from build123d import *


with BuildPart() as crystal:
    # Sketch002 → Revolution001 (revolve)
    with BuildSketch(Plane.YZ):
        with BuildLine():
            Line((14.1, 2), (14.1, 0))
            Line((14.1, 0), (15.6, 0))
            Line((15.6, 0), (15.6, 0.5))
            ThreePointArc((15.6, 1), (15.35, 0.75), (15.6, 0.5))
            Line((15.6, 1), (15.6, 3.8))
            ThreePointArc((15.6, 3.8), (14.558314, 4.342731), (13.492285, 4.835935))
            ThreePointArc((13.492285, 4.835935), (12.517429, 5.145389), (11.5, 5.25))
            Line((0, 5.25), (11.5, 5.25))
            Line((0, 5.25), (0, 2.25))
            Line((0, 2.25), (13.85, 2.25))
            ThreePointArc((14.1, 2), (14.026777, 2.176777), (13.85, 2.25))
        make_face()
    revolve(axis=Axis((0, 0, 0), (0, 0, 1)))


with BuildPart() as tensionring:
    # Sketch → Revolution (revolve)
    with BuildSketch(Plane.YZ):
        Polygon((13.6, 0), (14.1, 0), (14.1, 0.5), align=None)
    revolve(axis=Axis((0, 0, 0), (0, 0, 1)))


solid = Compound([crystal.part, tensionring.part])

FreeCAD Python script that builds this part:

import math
import FreeCAD as App
import Part
import Sketcher

V = App.Vector


def add_polygon(sketch, points):
    """Adds a closed chain of lines whose ends are joined by coincident constraints."""
    first, n = sketch.GeometryCount, len(points)
    for a, b in zip(points, points[1:] + points[:1]):
        sketch.addGeometry(Part.LineSegment(App.Vector(*a, 0), App.Vector(*b, 0)), False)
    for i in range(n):
        sketch.addConstraint(Sketcher.Constraint("Coincident", first + i, 2, first + (i + 1) % n, 1))

doc = App.newDocument("Part")
body = doc.addObject("PartDesign::Body", "Body")

# Sketch on YZ plane
sketch1 = body.newObject("Sketcher::SketchObject", "Sketch")
sketch1.AttachmentSupport = (doc.getObject("YZ_Plane"), [""])
sketch1.MapMode = "FlatFace"
sketch1.addGeometry(Part.LineSegment(V(14.1, 2, 0), V(14.1, 0, 0)), False)
sketch1.addGeometry(Part.LineSegment(V(14.1, 0, 0), V(15.6, 0, 0)), False)
sketch1.addGeometry(Part.LineSegment(V(15.6, 0, 0), V(15.6, 0.5, 0)), False)
sketch1.addGeometry(Part.ArcOfCircle(Part.Circle(V(15.6, 0.75, 0), V(0, 0, 1), 0.25), math.radians(90), math.radians(270)), False)
sketch1.addGeometry(Part.LineSegment(V(15.6, 1, 0), V(15.6, 3.8, 0)), False)
sketch1.addGeometry(Part.ArcOfCircle(Part.Circle(V(3.530742, -18.093983, 0), V(0, 0, 1), 25.00027), math.radians(61.133849), math.radians(66.518221)), False)
sketch1.addGeometry(Part.ArcOfCircle(Part.Circle(V(11.499996, 0.249979, 0), V(0, 0, 1), 5.000021), math.radians(66.518294), math.radians(89.999949)), False)
sketch1.addGeometry(Part.LineSegment(V(11.5, 5.25, 0), V(0, 5.25, 0)), False)
sketch1.addGeometry(Part.LineSegment(V(0, 5.25, 0), V(0, 2.25, 0)), False)
sketch1.addGeometry(Part.LineSegment(V(0, 2.25, 0), V(13.85, 2.25, 0)), False)
sketch1.addGeometry(Part.ArcOfCircle(Part.Circle(V(13.850001, 2.000001, 0), V(0, 0, 1), 0.249999), math.radians(-0.000238), math.radians(90.000238)), False)
sketch1.addConstraint(Sketcher.Constraint("Coincident", 0, 2, 1, 1))
sketch1.addConstraint(Sketcher.Constraint("Coincident", 1, 2, 2, 1))
sketch1.addConstraint(Sketcher.Constraint("Coincident", 2, 2, 3, 2))
sketch1.addConstraint(Sketcher.Constraint("Coincident", 3, 1, 4, 1))
sketch1.addConstraint(Sketcher.Constraint("Coincident", 4, 2, 5, 1))
sketch1.addConstraint(Sketcher.Constraint("Coincident", 5, 2, 6, 1))
sketch1.addConstraint(Sketcher.Constraint("Coincident", 6, 2, 7, 1))
sketch1.addConstraint(Sketcher.Constraint("Coincident", 7, 2, 8, 1))
sketch1.addConstraint(Sketcher.Constraint("Coincident", 8, 2, 9, 1))
sketch1.addConstraint(Sketcher.Constraint("Coincident", 9, 2, 10, 2))
sketch1.addConstraint(Sketcher.Constraint("Coincident", 10, 1, 0, 1))
sketch1.addConstraint(Sketcher.Constraint("Vertical", 0))
sketch1.addConstraint(Sketcher.Constraint("Horizontal", 1))
sketch1.addConstraint(Sketcher.Constraint("Vertical", 2))
sketch1.addConstraint(Sketcher.Constraint("Vertical", 4))
sketch1.addConstraint(Sketcher.Constraint("Horizontal", 7))
sketch1.addConstraint(Sketcher.Constraint("Vertical", 8))
sketch1.addConstraint(Sketcher.Constraint("Horizontal", 9))
sketch1.addConstraint(Sketcher.Constraint("PointOnObject", 0, 2, -1))
sketch1.addConstraint(Sketcher.Constraint("PointOnObject", 7, 2, -2))
sketch1.addConstraint(Sketcher.Constraint("DistanceY", 0, 2, 0, 1, 2.0))
sketch1.addConstraint(Sketcher.Constraint("DistanceY", 8, 2, 8, 1, 3.0))
sketch1.addConstraint(Sketcher.Constraint("Radius", 3, 0.25))
sketch1.addConstraint(Sketcher.Constraint("Radius", 10, 0.249999))
sketch1.addConstraint(Sketcher.Constraint("DistanceX", 1, 1, 1, 2, 1.5))
sketch1.addConstraint(Sketcher.Constraint("DistanceX", 7, 2, 7, 1, 11.5))
sketch1.addConstraint(Sketcher.Constraint("DistanceY", 2, 1, 2, 2, 0.5))
sketch1.addConstraint(Sketcher.Constraint("DistanceY", 4, 1, 4, 2, 2.8))
sketch1.addConstraint(Sketcher.Constraint("DistanceY", -1, 1, 10, 3, 2.000001))
sketch1.addConstraint(Sketcher.Constraint("DistanceX", 9, 1, 9, 2, 13.85))
sketch1.addConstraint(Sketcher.Constraint("DistanceX", -1, 1, 3, 3, 15.6))
sketch1.addConstraint(Sketcher.Constraint("DistanceX", -1, 1, 0, 2, 14.1))
sketch1.addConstraint(Sketcher.Constraint("DistanceX", -1, 1, 3, 1, 15.6))
sketch1.addConstraint(Sketcher.Constraint("Radius", 5, 25.00027))
sketch1.addConstraint(Sketcher.Constraint("Radius", 6, 5.000021))
sketch1.addConstraint(Sketcher.Constraint("DistanceX", 5, 3, 10, 3, 10.319259))
sketch1.addConstraint(Sketcher.Constraint("DistanceX", -1, 1, 5, 2, 13.492285))
revolution = body.newObject("PartDesign::Revolution", "Revolution")
revolution.Profile = sketch1
revolution.ReferenceAxis = (sketch1, ["V_Axis"])
revolution.Angle = 360
body2 = doc.addObject("PartDesign::Body", "Body001")

# Sketch on YZ plane
sketch2 = body2.newObject("Sketcher::SketchObject", "Sketch001")
sketch2.AttachmentSupport = (doc.getObject("YZ_Plane001"), [""])
sketch2.MapMode = "FlatFace"
add_polygon(sketch2, [(13.6, 0), (14.1, 0), (14.1, 0.5)])  # lines 0-2
sketch2.addConstraint(Sketcher.Constraint("Horizontal", 0))
sketch2.addConstraint(Sketcher.Constraint("Vertical", 1))
sketch2.addConstraint(Sketcher.Constraint("PointOnObject", 0, 2, -1))
sketch2.addConstraint(Sketcher.Constraint("Equal", 0, 1))
sketch2.addConstraint(Sketcher.Constraint("DistanceX", 0, 1, 0, 2, 0.5))
sketch2.addConstraint(Sketcher.Constraint("DistanceX", -1, 1, 0, 2, 14.1))
revolution2 = body2.newObject("PartDesign::Revolution", "Revolution001")
revolution2.Profile = sketch2
revolution2.ReferenceAxis = (sketch2, ["V_Axis"])
revolution2.Angle = 360

doc.recompute()
